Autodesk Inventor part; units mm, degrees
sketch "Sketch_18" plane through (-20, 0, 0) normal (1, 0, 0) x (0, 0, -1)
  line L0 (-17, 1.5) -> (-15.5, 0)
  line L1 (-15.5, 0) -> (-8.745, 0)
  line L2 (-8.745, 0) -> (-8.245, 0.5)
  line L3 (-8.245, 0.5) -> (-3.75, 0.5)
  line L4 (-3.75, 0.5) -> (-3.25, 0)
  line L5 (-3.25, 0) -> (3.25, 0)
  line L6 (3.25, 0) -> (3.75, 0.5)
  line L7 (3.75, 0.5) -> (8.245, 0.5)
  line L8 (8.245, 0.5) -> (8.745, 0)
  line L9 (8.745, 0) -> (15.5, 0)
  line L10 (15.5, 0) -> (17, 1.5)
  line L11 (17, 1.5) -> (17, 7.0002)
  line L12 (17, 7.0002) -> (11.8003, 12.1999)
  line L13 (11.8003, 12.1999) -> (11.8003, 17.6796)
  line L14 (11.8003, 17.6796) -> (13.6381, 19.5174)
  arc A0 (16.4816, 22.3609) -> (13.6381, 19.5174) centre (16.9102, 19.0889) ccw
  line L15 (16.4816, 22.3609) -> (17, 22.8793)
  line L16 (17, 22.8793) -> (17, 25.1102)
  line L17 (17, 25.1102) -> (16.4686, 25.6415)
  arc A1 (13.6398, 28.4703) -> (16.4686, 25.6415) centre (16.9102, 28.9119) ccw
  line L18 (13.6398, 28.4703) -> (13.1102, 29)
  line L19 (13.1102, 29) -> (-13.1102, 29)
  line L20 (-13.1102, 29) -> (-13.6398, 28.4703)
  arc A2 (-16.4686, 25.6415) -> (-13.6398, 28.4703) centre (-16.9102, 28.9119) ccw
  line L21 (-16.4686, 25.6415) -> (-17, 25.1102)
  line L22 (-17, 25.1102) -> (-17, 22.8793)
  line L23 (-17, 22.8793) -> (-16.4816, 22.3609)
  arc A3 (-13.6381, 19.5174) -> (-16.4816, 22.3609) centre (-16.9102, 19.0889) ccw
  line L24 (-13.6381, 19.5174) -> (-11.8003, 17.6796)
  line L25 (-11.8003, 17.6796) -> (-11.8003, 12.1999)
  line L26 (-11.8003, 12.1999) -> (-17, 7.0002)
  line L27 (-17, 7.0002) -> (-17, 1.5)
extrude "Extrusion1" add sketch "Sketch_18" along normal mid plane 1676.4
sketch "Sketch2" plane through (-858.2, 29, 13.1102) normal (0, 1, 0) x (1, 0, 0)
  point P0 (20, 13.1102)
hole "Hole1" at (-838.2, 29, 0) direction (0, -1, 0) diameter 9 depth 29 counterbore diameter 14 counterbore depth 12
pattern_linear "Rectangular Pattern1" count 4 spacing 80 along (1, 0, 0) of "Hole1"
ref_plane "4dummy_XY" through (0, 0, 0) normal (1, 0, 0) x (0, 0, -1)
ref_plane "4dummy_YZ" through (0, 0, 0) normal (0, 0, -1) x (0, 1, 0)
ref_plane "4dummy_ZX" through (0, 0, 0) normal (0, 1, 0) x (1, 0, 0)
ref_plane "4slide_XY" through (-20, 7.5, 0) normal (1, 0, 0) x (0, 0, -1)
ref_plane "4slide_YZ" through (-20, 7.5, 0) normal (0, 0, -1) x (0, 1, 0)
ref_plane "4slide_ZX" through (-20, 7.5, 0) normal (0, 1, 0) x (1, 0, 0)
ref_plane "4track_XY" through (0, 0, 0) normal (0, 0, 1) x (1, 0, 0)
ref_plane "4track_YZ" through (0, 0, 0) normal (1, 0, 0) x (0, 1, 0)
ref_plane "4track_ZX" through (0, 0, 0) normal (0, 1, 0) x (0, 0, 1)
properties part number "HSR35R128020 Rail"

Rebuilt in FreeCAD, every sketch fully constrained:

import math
import FreeCAD as App
import Part
import Sketcher

V = App.Vector
Q = App.Units.Quantity

doc = App.newDocument("Part")
body = doc.addObject("PartDesign::Body", "Body")

# Sketch on YZ plane
sketch1 = body.newObject("Sketcher::SketchObject", "Sketch")
sketch1.AttachmentSupport = (doc.getObject("YZ_Plane"), [""])
sketch1.MapMode = "FlatFace"
sketch1.AttachmentOffset = App.Placement(V(0, 0, -20), App.Rotation())
sketch1.addGeometry([
    Part.LineSegment(V(7.0002, 17, 0), V(1.5, 17, 0)),  # 0
    Part.LineSegment(V(1.5, 17, 0), V(0, 15.5, 0)),  # 1
    Part.LineSegment(V(0, 15.5, 0), V(0, 8.745, 0)),  # 2
    Part.LineSegment(V(0, 8.745, 0), V(0.5, 8.245, 0)),  # 3
    Part.LineSegment(V(0.5, 8.245, 0), V(0.5, 3.75, 0)),  # 4
    Part.LineSegment(V(0.5, 3.75, 0), V(0, 3.25, 0)),  # 5
    Part.LineSegment(V(0, 3.25, 0), V(0, -3.25, 0)),  # 6
    Part.LineSegment(V(0, -3.25, 0), V(0.5, -3.75, 0)),  # 7
    Part.LineSegment(V(0.5, -3.75, 0), V(0.5, -8.245, 0)),  # 8
    Part.LineSegment(V(0.5, -8.245, 0), V(0, -8.745, 0)),  # 9
    Part.LineSegment(V(0, -8.745, 0), V(0, -15.5, 0)),  # 10
    Part.LineSegment(V(0, -15.5, 0), V(1.5, -17, 0)),  # 11
    Part.LineSegment(V(1.5, -17, 0), V(7.0002, -17, 0)),  # 12
    Part.LineSegment(V(7.0002, -17, 0), V(12.1999, -11.8003, 0)),  # 13
    Part.LineSegment(V(12.1999, -11.8003, 0), V(17.6796, -11.8003, 0)),  # 14
    Part.LineSegment(V(17.6796, -11.8003, 0), V(19.5174, -13.6381, 0)),  # 15
    Part.ArcOfCircle(Part.Circle(V(19.0889, -16.9102, 0), V(0, 0, 1), 3.299952), math.radians(7.462698), math.radians(82.539249)),  # 16
    Part.LineSegment(V(22.3609, -16.4816, 0), V(22.8793, -17, 0)),  # 17
    Part.LineSegment(V(22.8793, -17, 0), V(25.1102, -17, 0)),  # 18
    Part.LineSegment(V(25.1102, -17, 0), V(25.6415, -16.4686, 0)),  # 19
    Part.ArcOfCircle(Part.Circle(V(28.9119, -16.9102, 0), V(0, 0, 1), 3.30008), math.radians(97.6901), math.radians(172.3099)),  # 20
    Part.LineSegment(V(28.4703, -13.6398, 0), V(29, -13.1102, 0)),  # 21
    Part.LineSegment(V(29, -13.1102, 0), V(29, 13.1102, 0)),  # 22
    Part.LineSegment(V(29, 13.1102, 0), V(28.4703, 13.6398, 0)),  # 23
    Part.ArcOfCircle(Part.Circle(V(28.9119, 16.9102, 0), V(0, 0, 1), 3.30008), math.radians(-172.3099), math.radians(-97.6901)),  # 24
    Part.LineSegment(V(25.6415, 16.4686, 0), V(25.1102, 17, 0)),  # 25
    Part.LineSegment(V(25.1102, 17, 0), V(22.8793, 17, 0)),  # 26
    Part.LineSegment(V(22.8793, 17, 0), V(22.3609, 16.4816, 0)),  # 27
    Part.ArcOfCircle(Part.Circle(V(19.0889, 16.9102, 0), V(0, 0, 1), 3.300038), math.radians(-82.539249), math.radians(-7.462698)),  # 28
    Part.LineSegment(V(19.5174, 13.6381, 0), V(17.6796, 11.8003, 0)),  # 29
    Part.LineSegment(V(17.6796, 11.8003, 0), V(12.1999, 11.8003, 0)),  # 30
    Part.LineSegment(V(12.1999, 11.8003, 0), V(7.0002, 17, 0)),  # 31
], False)
sketch1.addConstraint([
    Sketcher.Constraint("Coincident", 0, 2, 1, 1),
    Sketcher.Constraint("Coincident", 1, 2, 2, 1),
    Sketcher.Constraint("Coincident", 2, 2, 3, 1),
    Sketcher.Constraint("Coincident", 3, 2, 4, 1),
    Sketcher.Constraint("Coincident", 4, 2, 5, 1),
    Sketcher.Constraint("Coincident", 5, 2, 6, 1),
    Sketcher.Constraint("Coincident", 6, 2, 7, 1),
    Sketcher.Constraint("Coincident", 7, 2, 8, 1),
    Sketcher.Constraint("Coincident", 8, 2, 9, 1),
    Sketcher.Constraint("Coincident", 9, 2, 10, 1),
    Sketcher.Constraint("Coincident", 10, 2, 11, 1),
    Sketcher.Constraint("Coincident", 11, 2, 12, 1),
    Sketcher.Constraint("Coincident", 12, 2, 13, 1),
    Sketcher.Constraint("Coincident", 13, 2, 14, 1),
    Sketcher.Constraint("Coincident", 14, 2, 15, 1),
    Sketcher.Constraint("Coincident", 15, 2, 16, 2),
    Sketcher.Constraint("Coincident", 16, 1, 17, 1),
    Sketcher.Constraint("Coincident", 17, 2, 18, 1),
    Sketcher.Constraint("Coincident", 18, 2, 19, 1),
    Sketcher.Constraint("Coincident", 19, 2, 20, 2),
    Sketcher.Constraint("Coincident", 20, 1, 21, 1),
    Sketcher.Constraint("Coincident", 21, 2, 22, 1),
    Sketcher.Constraint("Coincident", 22, 2, 23, 1),
    Sketcher.Constraint("Coincident", 23, 2, 24, 2),
    Sketcher.Constraint("Coincident", 24, 1, 25, 1),
    Sketcher.Constraint("Coincident", 25, 2, 26, 1),
    Sketcher.Constraint("Coincident", 26, 2, 27, 1),
    Sketcher.Constraint("Coincident", 27, 2, 28, 2),
    Sketcher.Constraint("Coincident", 28, 1, 29, 1),
    Sketcher.Constraint("Coincident", 29, 2, 30, 1),
    Sketcher.Constraint("Coincident", 30, 2, 31, 1),
    Sketcher.Constraint("Coincident", 31, 2, 0, 1),
    Sketcher.Constraint("Horizontal", 0),
    Sketcher.Constraint("Vertical", 2),
    Sketcher.Constraint("Vertical", 4),
    Sketcher.Constraint("Vertical", 6),
    Sketcher.Constraint("Vertical", 8),
    Sketcher.Constraint("Vertical", 10),
    Sketcher.Constraint("Horizontal", 12),
    Sketcher.Constraint("Horizontal", 14),
    Sketcher.Constraint("Horizontal", 18),
    Sketcher.Constraint("Vertical", 22),
    Sketcher.Constraint("Horizontal", 26),
    Sketcher.Constraint("Horizontal", 30),
    Sketcher.Constraint("PointOnObject", 1, 2, -2),
    Sketcher.Constraint("PointOnObject", 5, 2, -2),
    Sketcher.Constraint("PointOnObject", 9, 2, -2),
    Sketcher.Constraint("Radius", 16, Q("3.3 mm")),
    Sketcher.Constraint("Radius", 20, Q("3.3 mm")),
    Sketcher.Constraint("Radius", 24, Q("3.3 mm")),
    Sketcher.Constraint("Radius", 28, Q("3.3 mm")),
    Sketcher.Constraint("DistanceY", 6, 2, 6, 1, Q("6.5 mm")),
    Sketcher.Constraint("DistanceY", -1, 1, 0, 2, Q("17 mm")),
    Sketcher.Constraint("DistanceY", 11, 2, -1, 1, Q("17 mm")),
    Sketcher.Constraint("DistanceY", 17, 2, -1, 1, Q("17 mm")),
    Sketcher.Constraint("DistanceX", -1, 1, 21, 2, Q("29 mm")),
    Sketcher.Constraint("DistanceY", -1, 1, 25, 2, Q("17 mm")),
    Sketcher.Constraint("DistanceX", 3, 2, 0, 2, Q("1 mm")),
    Sketcher.Constraint("DistanceY", 6, 2, 4, 2, Q("7 mm")),
    Sketcher.Constraint("DistanceY", 7, 2, 5, 2, Q("7 mm")),
    Sketcher.Constraint("DistanceX", 8, 2, 11, 2, Q("1 mm")),
    Sketcher.Constraint("DistanceX", -1, 1, 0, 2, Q("1.5 mm")),
    Sketcher.Constraint("DistanceY", -1, 1, 1, 2, Q("15.5 mm")),
    Sketcher.Constraint("DistanceX", -1, 1, 7, 2, Q("0.5 mm")),
    Sketcher.Constraint("DistanceY", 10, 2, -1, 1, Q("15.5 mm")),
    Sketcher.Constraint("DistanceX", -1, 1, 13, 2, Q("12.2 mm")),
    Sketcher.Constraint("DistanceX", -1, 1, 30, 2, Q("12.2 mm")),
    Sketcher.Constraint("DistanceY", 3, 2, 2, 2, Q("0.5 mm")),
    Sketcher.Constraint("DistanceY", 9, 2, 8, 2, Q("0.5 mm")),
    Sketcher.Constraint("DistanceY", 20, 3, 21, 2, Q("3.8 mm")),
    Sketcher.Constraint("DistanceY", 22, 2, 24, 3, Q("3.8 mm")),
    Sketcher.Constraint("DistanceY", 22, 2, 28, 3, Q("3.8 mm")),
    Sketcher.Constraint("DistanceX", 18, 1, 18, 2, Q("2.231 mm")),
    Sketcher.Constraint("DistanceX", 26, 2, 26, 1, Q("2.231 mm")),
    Sketcher.Constraint("DistanceY", 2, 2, 2, 1, Q("6.755 mm")),
    Sketcher.Constraint("DistanceY", 4, 2, 4, 1, Q("4.495 mm")),
    Sketcher.Constraint("DistanceY", 8, 2, 8, 1, Q("4.495 mm")),
    Sketcher.Constraint("DistanceY", 16, 3, 13, 2, Q("5.11 mm")),
    Sketcher.Constraint("DistanceY", 20, 3, 14, 2, Q("5.11 mm")),
    Sketcher.Constraint("DistanceX", 18, 2, 20, 1, Q("3.36 mm")),
    Sketcher.Constraint("DistanceY", 20, 1, 22, 2, Q("26.75 mm")),
    Sketcher.Constraint("DistanceY", 21, 2, 23, 2, Q("26.75 mm")),
    Sketcher.Constraint("DistanceX", 25, 2, 23, 2, Q("3.36 mm")),
    Sketcher.Constraint("DistanceY", 29, 2, 28, 3, Q("5.11 mm")),
    Sketcher.Constraint("Distance", 15, Q("2.599 mm")),
    Sketcher.Constraint("Distance", 21, Q("0.749 mm")),
    Sketcher.Constraint("Distance", 23, Q("0.749 mm")),
    Sketcher.Constraint("Distance", 29, Q("2.599 mm")),
    Sketcher.Constraint("DistanceX", 0, 2, 0, 1, Q("5.5002 mm")),
    Sketcher.Constraint("DistanceX", 12, 1, 12, 2, Q("5.5002 mm")),
    Sketcher.Constraint("DistanceX", 14, 1, 14, 2, Q("5.4797 mm")),
    Sketcher.Constraint("DistanceX", 30, 2, 30, 1, Q("5.4797 mm")),
    Sketcher.Constraint("DistanceY", 22, 1, 22, 2, Q("26.2204 mm")),
    Sketcher.Constraint("DistanceX", -1, 1, 16, 3, Q("19.089 mm")),
    Sketcher.Constraint("DistanceX", -1, 1, 28, 3, Q("19.089 mm")),
    Sketcher.Constraint("DistanceY", 15, 2, -1, 1, Q("13.638 mm")),
    Sketcher.Constraint("DistanceX", -1, 1, 16, 1, Q("22.361 mm")),
    Sketcher.Constraint("DistanceX", -1, 1, 27, 2, Q("22.361 mm")),
    Sketcher.Constraint("DistanceY", 16, 1, 19, 2, Q("0.013 mm")),
    Sketcher.Constraint("DistanceY", 24, 1, 27, 2, Q("0.013 mm")),
])
pad1 = body.newObject("PartDesign::Pad", "Pad")
pad1.Profile = sketch1
pad1.Length = 1676.4
pad1.Midplane = True

# Sketch on XZ plane
sketch2 = body.newObject("Sketcher::SketchObject", "Sketch001")
sketch2.AttachmentSupport = (doc.getObject("XZ_Plane"), [""])
sketch2.MapMode = "FlatFace"
sketch2.AttachmentOffset = App.Placement(V(0, 0, -29), App.Rotation())
sketch2.addGeometry(Part.Circle(V(-838.2, 0, 0), V(0, 0, 1), 4.5), False)
sketch2.addConstraint([
    Sketcher.Constraint("PointOnObject", 0, 3, -1),
    Sketcher.Constraint("Diameter", 0, Q("9 mm")),
    Sketcher.Constraint("DistanceX", 0, 3, -1, 1, Q("838.2 mm")),
])
doc.recompute()
hole = body.newObject("PartDesign::Hole", "Hole")
hole.Profile = sketch2
hole.ThreadType = "None"
hole.Diameter = 9
hole.DepthType = "Dimension"
hole.Depth = 29
hole.DrillPoint = "Flat"
hole.HoleCutType = "Counterbore"
hole.HoleCutDiameter = 14
hole.HoleCutDepth = 12
hole.Reversed = True
doc.recompute()

linearpattern = body.newObject("PartDesign::LinearPattern", "LinearPattern")
linearpattern.Originals = [hole]
linearpattern.Direction = (doc.getObject("X_Axis"), [""])
linearpattern.Mode = "offset"
linearpattern.Offset = 80
linearpattern.Occurrences = 4
body.Tip = linearpattern

doc.recompute()
